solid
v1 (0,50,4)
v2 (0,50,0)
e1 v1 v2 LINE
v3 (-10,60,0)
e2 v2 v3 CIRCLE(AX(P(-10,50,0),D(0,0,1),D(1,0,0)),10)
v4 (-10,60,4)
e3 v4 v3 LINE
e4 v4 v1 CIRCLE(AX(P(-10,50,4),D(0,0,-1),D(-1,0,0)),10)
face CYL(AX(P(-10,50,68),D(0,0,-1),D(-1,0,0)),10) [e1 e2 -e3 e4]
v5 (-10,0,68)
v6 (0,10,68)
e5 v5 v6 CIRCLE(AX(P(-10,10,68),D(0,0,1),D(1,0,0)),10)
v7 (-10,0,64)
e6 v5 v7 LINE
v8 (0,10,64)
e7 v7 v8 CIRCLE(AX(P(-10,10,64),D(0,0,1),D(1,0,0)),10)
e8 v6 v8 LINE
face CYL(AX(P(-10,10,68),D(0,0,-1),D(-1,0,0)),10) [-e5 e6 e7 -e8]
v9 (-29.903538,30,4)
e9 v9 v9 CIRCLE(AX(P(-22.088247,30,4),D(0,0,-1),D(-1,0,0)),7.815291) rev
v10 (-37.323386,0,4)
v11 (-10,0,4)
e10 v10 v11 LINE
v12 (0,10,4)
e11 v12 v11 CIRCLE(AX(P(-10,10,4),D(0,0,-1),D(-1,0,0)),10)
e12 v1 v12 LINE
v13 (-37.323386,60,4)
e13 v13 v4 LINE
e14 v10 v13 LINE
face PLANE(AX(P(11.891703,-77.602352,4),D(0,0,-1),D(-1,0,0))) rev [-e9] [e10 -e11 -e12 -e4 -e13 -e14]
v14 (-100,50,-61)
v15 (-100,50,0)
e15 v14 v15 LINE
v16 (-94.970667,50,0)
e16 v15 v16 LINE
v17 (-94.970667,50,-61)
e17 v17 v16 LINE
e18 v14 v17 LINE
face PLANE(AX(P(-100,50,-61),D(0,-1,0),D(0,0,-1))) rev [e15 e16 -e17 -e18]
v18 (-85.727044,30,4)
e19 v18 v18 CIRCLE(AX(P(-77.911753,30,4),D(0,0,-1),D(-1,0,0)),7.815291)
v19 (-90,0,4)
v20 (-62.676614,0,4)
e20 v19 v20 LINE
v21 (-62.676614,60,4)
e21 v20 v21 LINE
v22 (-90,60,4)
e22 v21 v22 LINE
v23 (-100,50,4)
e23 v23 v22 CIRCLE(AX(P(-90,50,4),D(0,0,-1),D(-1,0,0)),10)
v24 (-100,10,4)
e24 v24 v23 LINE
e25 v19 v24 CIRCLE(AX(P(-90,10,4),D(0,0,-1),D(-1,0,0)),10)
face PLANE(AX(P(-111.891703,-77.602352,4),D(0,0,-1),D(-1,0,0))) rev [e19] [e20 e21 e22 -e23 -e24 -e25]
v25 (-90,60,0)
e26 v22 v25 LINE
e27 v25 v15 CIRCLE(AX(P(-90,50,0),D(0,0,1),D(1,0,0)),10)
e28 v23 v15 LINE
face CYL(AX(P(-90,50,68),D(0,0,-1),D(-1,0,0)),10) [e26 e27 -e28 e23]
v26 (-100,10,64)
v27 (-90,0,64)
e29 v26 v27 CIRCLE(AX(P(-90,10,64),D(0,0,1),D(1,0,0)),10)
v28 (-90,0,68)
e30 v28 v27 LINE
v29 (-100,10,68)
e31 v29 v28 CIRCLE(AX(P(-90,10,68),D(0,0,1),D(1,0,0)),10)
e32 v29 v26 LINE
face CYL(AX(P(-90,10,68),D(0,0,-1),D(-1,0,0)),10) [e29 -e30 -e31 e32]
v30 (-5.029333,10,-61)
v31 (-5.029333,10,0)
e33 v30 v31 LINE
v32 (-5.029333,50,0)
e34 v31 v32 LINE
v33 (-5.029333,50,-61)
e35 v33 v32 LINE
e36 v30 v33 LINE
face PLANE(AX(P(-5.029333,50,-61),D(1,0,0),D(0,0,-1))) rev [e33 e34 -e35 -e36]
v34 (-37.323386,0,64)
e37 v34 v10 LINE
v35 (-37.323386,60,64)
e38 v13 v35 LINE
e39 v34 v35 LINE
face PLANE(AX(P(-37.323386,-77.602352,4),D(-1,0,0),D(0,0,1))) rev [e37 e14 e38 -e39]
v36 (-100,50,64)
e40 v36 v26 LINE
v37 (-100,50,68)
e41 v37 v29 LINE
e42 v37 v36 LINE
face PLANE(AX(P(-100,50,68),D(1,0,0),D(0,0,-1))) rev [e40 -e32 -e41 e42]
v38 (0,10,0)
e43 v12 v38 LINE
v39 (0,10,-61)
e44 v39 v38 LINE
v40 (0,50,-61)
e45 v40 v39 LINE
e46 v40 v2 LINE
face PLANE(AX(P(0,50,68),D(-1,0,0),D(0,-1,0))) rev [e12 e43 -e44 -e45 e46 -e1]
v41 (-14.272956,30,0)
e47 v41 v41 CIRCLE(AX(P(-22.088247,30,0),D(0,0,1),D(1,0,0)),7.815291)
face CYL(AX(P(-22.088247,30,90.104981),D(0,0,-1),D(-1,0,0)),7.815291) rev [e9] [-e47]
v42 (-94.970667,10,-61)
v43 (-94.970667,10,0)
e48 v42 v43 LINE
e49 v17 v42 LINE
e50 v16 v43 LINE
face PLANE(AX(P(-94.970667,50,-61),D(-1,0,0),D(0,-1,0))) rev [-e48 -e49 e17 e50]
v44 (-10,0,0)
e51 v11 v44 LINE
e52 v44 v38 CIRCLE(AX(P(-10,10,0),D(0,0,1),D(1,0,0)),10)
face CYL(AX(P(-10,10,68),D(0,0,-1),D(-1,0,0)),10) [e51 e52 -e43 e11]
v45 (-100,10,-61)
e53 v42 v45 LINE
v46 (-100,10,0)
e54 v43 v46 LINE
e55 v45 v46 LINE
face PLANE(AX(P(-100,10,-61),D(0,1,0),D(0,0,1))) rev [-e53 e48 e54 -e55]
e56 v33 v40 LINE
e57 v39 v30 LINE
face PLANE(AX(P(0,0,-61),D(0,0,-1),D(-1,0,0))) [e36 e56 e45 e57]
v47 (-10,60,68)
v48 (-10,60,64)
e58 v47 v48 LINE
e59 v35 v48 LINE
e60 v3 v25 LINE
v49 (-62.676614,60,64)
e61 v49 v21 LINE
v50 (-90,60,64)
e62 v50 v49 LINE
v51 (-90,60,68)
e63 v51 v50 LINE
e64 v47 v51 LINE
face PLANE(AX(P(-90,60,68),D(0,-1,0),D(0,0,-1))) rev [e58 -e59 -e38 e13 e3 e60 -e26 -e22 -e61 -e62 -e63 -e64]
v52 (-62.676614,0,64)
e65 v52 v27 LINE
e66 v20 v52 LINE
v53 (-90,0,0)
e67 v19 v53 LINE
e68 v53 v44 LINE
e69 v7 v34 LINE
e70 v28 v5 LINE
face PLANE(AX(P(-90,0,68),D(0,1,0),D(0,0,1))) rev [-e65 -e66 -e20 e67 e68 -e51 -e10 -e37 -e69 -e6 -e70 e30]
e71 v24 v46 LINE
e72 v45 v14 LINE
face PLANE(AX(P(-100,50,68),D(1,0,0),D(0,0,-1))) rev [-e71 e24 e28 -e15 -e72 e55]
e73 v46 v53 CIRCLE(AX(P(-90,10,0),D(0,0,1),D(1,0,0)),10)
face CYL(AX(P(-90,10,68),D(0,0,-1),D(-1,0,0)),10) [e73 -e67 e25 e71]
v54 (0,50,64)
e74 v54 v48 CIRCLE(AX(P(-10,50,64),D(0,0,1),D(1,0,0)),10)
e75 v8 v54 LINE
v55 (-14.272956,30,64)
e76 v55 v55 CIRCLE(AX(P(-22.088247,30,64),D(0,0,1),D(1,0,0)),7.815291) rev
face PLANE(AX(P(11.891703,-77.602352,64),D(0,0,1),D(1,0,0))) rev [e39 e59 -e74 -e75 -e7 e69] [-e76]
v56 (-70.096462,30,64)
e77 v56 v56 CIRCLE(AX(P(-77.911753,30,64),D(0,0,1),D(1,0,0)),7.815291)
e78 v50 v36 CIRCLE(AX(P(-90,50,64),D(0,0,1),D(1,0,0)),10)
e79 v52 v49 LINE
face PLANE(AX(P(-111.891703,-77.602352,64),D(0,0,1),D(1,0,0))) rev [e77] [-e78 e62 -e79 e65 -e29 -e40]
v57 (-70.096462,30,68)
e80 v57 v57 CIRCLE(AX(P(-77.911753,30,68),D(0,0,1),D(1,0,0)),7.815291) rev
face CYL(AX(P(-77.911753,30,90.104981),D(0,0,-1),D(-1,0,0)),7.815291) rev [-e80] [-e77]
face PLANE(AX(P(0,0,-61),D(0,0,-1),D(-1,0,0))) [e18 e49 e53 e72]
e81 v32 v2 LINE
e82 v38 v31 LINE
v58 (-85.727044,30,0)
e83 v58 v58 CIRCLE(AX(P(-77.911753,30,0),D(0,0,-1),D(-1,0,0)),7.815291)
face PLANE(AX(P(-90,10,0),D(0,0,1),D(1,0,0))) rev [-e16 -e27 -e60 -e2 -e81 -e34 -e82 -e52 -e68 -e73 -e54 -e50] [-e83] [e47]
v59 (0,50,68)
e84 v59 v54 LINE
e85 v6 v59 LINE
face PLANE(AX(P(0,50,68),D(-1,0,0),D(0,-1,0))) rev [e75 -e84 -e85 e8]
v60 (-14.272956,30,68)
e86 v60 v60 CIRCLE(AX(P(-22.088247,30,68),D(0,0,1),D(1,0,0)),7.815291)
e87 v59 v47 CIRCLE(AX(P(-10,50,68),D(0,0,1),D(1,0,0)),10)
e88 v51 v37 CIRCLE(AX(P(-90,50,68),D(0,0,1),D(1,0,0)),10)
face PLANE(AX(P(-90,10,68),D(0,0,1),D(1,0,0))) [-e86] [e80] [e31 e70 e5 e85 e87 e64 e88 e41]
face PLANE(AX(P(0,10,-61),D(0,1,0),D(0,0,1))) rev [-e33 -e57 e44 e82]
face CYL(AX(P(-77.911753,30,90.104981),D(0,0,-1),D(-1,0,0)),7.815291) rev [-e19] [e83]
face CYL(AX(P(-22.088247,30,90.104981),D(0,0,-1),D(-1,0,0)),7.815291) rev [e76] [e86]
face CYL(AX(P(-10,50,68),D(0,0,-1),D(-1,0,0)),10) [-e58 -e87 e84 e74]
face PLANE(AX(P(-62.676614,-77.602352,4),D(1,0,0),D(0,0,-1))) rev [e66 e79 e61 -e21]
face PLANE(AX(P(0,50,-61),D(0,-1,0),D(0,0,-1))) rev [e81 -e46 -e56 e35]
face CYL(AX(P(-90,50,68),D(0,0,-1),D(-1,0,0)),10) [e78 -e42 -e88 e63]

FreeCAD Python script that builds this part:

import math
import FreeCAD as App
import Part
import Sketcher
from FreeCAD import Vector
Q = App.Units.Quantity


def add_polygon(sketch, points):
    """Adds a closed chain of lines whose ends are joined by coincident constraints."""
    first, n = sketch.GeometryCount, len(points)
    for a, b in zip(points, points[1:] + points[:1]):
        sketch.addGeometry(Part.LineSegment(App.Vector(*a, 0), App.Vector(*b, 0)), False)
    for i in range(n):
        sketch.addConstraint(Sketcher.Constraint("Coincident", first + i, 2, first + (i + 1) % n, 1))

doc = App.newDocument("Part")
body = doc.addObject("PartDesign::Body", "Body")

sketch1 = body.newObject("Sketcher::SketchObject", "Sketch")
sketch1.AttachmentSupport = (doc.getObject("XY_Plane"), [""])
sketch1.MapMode = "FlatFace"
sketch1.addGeometry([
    Part.LineSegment(Vector(-10, 60, 0), Vector(-90, 60, 0)),
    Part.ArcOfCircle(Part.Circle(Vector(-90, 50, 0), Vector(0, 0, 1), 10), math.radians(90), math.radians(180)),
    Part.LineSegment(Vector(-100, 50, 0), Vector(-100, 10, 0)),
    Part.ArcOfCircle(Part.Circle(Vector(-90, 10, 0), Vector(0, 0, 1), 10), math.radians(180), math.radians(270)),
    Part.LineSegment(Vector(-90, 0, 0), Vector(-10, 0, 0)),
    Part.ArcOfCircle(Part.Circle(Vector(-10, 10, 0), Vector(0, 0, 1), 10), math.radians(-90), math.radians(0)),
    Part.LineSegment(Vector(0, 10, 0), Vector(0, 50, 0)),
    Part.ArcOfCircle(Part.Circle(Vector(-10, 50, 0), Vector(0, 0, 1), 10), math.radians(0), math.radians(90)),
], False)
sketch1.addConstraint([
    Sketcher.Constraint("Tangent", 0, 2, 1, 1),
    Sketcher.Constraint("Tangent", 1, 2, 2, 1),
    Sketcher.Constraint("Tangent", 2, 2, 3, 1),
    Sketcher.Constraint("Tangent", 3, 2, 4, 1),
    Sketcher.Constraint("Tangent", 4, 2, 5, 1),
    Sketcher.Constraint("Tangent", 5, 2, 6, 1),
    Sketcher.Constraint("Tangent", 6, 2, 7, 1),
    Sketcher.Constraint("Tangent", 7, 2, 0, 1),
    Sketcher.Constraint("Horizontal", 0),
    Sketcher.Constraint("Vertical", 2),
    Sketcher.Constraint("Horizontal", 4),
    Sketcher.Constraint("Vertical", 6),
    Sketcher.Constraint("Equal", 1, 3),
    Sketcher.Constraint("Equal", 3, 5),
    Sketcher.Constraint("Equal", 5, 7),
    Sketcher.Constraint("PointOnObject", 3, 2, -1),
    Sketcher.Constraint("PointOnObject", 5, 2, -2),
    Sketcher.Constraint("Radius", 1, Q("10 mm")),
    Sketcher.Constraint("DistanceX", 0, 2, 0, 1, Q("80 mm")),
    Sketcher.Constraint("DistanceY", 2, 2, 2, 1, Q("40 mm")),
])
pad1 = body.newObject("PartDesign::Pad", "Pad")
pad1.Profile = sketch1
pad1.Length = 68

sketch2 = body.newObject("Sketcher::SketchObject", "Sketch001")
sketch2.AttachmentSupport = (doc.getObject("XZ_Plane"), [""])
sketch2.MapMode = "FlatFace"
sketch2.AttachmentOffset = App.Placement(Vector(0, 0, -60), App.Rotation())
add_polygon(sketch2, [(-37, 4), (-37, 64), (12, 64), (12, 4)])
add_polygon(sketch2, [(-112, 4), (-112, 64), (-63, 64), (-63, 4)])
sketch2.addConstraint([
    Sketcher.Constraint("Vertical", 0),
    Sketcher.Constraint("Horizontal", 1),
    Sketcher.Constraint("Vertical", 2),
    Sketcher.Constraint("Horizontal", 3),
    Sketcher.Constraint("Vertical", 4),
    Sketcher.Constraint("Horizontal", 5),
    Sketcher.Constraint("Vertical", 6),
    Sketcher.Constraint("Horizontal", 7),
    Sketcher.Constraint("Horizontal", 1, 2, 4, 2),
    Sketcher.Constraint("Horizontal", 3, 2, 6, 2),
    Sketcher.Constraint("Equal", 3, 5),
    Sketcher.Constraint("DistanceY", 0, 1, 0, 2, Q("60 mm")),
    Sketcher.Constraint("DistanceY", -1, 1, 0, 2, Q("64 mm")),
    Sketcher.Constraint("DistanceX", 1, 1, 1, 2, Q("49.215089 mm")),
    Sketcher.Constraint("DistanceX", 0, 2, -1, 1, Q("37.323386 mm")),
    Sketcher.Constraint("DistanceX", 4, 2, -1, 1, Q("111.891703 mm")),
])
pocket1 = body.newObject("PartDesign::Pocket", "Pocket")
pocket1.Profile = sketch2
pocket1.Length = 60
pocket1.Reversed = True

sketch3 = body.newObject("Sketcher::SketchObject", "Sketch002")
sketch3.AttachmentSupport = (doc.getObject("XY_Plane"), [""])
sketch3.MapMode = "FlatFace"
sketch3.addGeometry(Part.Circle(Vector(-22, 30, 0), Vector(0, 0, 1), 8), False)
sketch3.addConstraint([
    Sketcher.Constraint("DistanceY", -1, 1, 0, 3, Q("30 mm")),
    Sketcher.Constraint("Diameter", 0, Q("15.630582 mm")),
    Sketcher.Constraint("DistanceX", 0, 3, -1, 1, Q("22.088247 mm")),
])
pocket2 = body.newObject("PartDesign::Pocket", "Pocket001")
pocket2.Profile = sketch3
pocket2.Length = 68
pocket2.Reversed = True

sketch4 = body.newObject("Sketcher::SketchObject", "Sketch003")
sketch4.AttachmentSupport = (doc.getObject("XY_Plane"), [""])
sketch4.MapMode = "FlatFace"
sketch4.addGeometry([
    Part.Circle(Vector(-78, 30, 0), Vector(0, 0, 1), 8),
    Part.Circle(Vector(-22, 30, 0), Vector(0, 0, 1), 8),
], False)
sketch4.addConstraint([
    Sketcher.Constraint("Equal", 0, 1),
    Sketcher.Constraint("Horizontal", 0, 3, 1, 3),
    Sketcher.Constraint("DistanceY", -1, 1, 0, 3, Q("30 mm")),
    Sketcher.Constraint("Diameter", 0, Q("15.630582 mm")),
    Sketcher.Constraint("DistanceX", 0, 3, -1, 1, Q("77.911753 mm")),
    Sketcher.Constraint("DistanceX", 1, 3, -1, 1, Q("22.088247 mm")),
])
pocket3 = body.newObject("PartDesign::Pocket", "Pocket002")
pocket3.Profile = sketch4
pocket3.Length = 68
pocket3.Reversed = True

sketch5 = body.newObject("Sketcher::SketchObject", "Sketch004")
sketch5.AttachmentSupport = (doc.getObject("XY_Plane"), [""])
sketch5.MapMode = "FlatFace"
add_polygon(sketch5, [(0, 50), (0, 10), (-5, 10), (-5, 50)])
add_polygon(sketch5, [(-95, 50), (-95, 10), (-100, 10), (-100, 50)])
sketch5.addConstraint([
    Sketcher.Constraint("Vertical", 0),
    Sketcher.Constraint("Horizontal", 1),
    Sketcher.Constraint("Vertical", 2),
    Sketcher.Constraint("Horizontal", 3),
    Sketcher.Constraint("Vertical", 4),
    Sketcher.Constraint("Horizontal", 5),
    Sketcher.Constraint("Vertical", 6),
    Sketcher.Constraint("Horizontal", 7),
    Sketcher.Constraint("PointOnObject", 0, 2, -2),
    Sketcher.Constraint("Horizontal", 1, 2, 4, 2),
    Sketcher.Constraint("Horizontal", 3, 2, 6, 2),
    Sketcher.Constraint("Equal", 3, 5),
    Sketcher.Constraint("DistanceY", 0, 2, 0, 1, Q("40 mm")),
    Sketcher.Constraint("DistanceY", -1, 1, 0, 2, Q("10 mm")),
    Sketcher.Constraint("DistanceX", 5, 2, -1, 1, Q("100 mm")),
    Sketcher.Constraint("DistanceX", 1, 2, 1, 1, Q("5.029333 mm")),
])
pad2 = body.newObject("PartDesign::Pad", "Pad001")
pad2.Profile = sketch5
pad2.Length = 61
pad2.Reversed = True

doc.recompute()
